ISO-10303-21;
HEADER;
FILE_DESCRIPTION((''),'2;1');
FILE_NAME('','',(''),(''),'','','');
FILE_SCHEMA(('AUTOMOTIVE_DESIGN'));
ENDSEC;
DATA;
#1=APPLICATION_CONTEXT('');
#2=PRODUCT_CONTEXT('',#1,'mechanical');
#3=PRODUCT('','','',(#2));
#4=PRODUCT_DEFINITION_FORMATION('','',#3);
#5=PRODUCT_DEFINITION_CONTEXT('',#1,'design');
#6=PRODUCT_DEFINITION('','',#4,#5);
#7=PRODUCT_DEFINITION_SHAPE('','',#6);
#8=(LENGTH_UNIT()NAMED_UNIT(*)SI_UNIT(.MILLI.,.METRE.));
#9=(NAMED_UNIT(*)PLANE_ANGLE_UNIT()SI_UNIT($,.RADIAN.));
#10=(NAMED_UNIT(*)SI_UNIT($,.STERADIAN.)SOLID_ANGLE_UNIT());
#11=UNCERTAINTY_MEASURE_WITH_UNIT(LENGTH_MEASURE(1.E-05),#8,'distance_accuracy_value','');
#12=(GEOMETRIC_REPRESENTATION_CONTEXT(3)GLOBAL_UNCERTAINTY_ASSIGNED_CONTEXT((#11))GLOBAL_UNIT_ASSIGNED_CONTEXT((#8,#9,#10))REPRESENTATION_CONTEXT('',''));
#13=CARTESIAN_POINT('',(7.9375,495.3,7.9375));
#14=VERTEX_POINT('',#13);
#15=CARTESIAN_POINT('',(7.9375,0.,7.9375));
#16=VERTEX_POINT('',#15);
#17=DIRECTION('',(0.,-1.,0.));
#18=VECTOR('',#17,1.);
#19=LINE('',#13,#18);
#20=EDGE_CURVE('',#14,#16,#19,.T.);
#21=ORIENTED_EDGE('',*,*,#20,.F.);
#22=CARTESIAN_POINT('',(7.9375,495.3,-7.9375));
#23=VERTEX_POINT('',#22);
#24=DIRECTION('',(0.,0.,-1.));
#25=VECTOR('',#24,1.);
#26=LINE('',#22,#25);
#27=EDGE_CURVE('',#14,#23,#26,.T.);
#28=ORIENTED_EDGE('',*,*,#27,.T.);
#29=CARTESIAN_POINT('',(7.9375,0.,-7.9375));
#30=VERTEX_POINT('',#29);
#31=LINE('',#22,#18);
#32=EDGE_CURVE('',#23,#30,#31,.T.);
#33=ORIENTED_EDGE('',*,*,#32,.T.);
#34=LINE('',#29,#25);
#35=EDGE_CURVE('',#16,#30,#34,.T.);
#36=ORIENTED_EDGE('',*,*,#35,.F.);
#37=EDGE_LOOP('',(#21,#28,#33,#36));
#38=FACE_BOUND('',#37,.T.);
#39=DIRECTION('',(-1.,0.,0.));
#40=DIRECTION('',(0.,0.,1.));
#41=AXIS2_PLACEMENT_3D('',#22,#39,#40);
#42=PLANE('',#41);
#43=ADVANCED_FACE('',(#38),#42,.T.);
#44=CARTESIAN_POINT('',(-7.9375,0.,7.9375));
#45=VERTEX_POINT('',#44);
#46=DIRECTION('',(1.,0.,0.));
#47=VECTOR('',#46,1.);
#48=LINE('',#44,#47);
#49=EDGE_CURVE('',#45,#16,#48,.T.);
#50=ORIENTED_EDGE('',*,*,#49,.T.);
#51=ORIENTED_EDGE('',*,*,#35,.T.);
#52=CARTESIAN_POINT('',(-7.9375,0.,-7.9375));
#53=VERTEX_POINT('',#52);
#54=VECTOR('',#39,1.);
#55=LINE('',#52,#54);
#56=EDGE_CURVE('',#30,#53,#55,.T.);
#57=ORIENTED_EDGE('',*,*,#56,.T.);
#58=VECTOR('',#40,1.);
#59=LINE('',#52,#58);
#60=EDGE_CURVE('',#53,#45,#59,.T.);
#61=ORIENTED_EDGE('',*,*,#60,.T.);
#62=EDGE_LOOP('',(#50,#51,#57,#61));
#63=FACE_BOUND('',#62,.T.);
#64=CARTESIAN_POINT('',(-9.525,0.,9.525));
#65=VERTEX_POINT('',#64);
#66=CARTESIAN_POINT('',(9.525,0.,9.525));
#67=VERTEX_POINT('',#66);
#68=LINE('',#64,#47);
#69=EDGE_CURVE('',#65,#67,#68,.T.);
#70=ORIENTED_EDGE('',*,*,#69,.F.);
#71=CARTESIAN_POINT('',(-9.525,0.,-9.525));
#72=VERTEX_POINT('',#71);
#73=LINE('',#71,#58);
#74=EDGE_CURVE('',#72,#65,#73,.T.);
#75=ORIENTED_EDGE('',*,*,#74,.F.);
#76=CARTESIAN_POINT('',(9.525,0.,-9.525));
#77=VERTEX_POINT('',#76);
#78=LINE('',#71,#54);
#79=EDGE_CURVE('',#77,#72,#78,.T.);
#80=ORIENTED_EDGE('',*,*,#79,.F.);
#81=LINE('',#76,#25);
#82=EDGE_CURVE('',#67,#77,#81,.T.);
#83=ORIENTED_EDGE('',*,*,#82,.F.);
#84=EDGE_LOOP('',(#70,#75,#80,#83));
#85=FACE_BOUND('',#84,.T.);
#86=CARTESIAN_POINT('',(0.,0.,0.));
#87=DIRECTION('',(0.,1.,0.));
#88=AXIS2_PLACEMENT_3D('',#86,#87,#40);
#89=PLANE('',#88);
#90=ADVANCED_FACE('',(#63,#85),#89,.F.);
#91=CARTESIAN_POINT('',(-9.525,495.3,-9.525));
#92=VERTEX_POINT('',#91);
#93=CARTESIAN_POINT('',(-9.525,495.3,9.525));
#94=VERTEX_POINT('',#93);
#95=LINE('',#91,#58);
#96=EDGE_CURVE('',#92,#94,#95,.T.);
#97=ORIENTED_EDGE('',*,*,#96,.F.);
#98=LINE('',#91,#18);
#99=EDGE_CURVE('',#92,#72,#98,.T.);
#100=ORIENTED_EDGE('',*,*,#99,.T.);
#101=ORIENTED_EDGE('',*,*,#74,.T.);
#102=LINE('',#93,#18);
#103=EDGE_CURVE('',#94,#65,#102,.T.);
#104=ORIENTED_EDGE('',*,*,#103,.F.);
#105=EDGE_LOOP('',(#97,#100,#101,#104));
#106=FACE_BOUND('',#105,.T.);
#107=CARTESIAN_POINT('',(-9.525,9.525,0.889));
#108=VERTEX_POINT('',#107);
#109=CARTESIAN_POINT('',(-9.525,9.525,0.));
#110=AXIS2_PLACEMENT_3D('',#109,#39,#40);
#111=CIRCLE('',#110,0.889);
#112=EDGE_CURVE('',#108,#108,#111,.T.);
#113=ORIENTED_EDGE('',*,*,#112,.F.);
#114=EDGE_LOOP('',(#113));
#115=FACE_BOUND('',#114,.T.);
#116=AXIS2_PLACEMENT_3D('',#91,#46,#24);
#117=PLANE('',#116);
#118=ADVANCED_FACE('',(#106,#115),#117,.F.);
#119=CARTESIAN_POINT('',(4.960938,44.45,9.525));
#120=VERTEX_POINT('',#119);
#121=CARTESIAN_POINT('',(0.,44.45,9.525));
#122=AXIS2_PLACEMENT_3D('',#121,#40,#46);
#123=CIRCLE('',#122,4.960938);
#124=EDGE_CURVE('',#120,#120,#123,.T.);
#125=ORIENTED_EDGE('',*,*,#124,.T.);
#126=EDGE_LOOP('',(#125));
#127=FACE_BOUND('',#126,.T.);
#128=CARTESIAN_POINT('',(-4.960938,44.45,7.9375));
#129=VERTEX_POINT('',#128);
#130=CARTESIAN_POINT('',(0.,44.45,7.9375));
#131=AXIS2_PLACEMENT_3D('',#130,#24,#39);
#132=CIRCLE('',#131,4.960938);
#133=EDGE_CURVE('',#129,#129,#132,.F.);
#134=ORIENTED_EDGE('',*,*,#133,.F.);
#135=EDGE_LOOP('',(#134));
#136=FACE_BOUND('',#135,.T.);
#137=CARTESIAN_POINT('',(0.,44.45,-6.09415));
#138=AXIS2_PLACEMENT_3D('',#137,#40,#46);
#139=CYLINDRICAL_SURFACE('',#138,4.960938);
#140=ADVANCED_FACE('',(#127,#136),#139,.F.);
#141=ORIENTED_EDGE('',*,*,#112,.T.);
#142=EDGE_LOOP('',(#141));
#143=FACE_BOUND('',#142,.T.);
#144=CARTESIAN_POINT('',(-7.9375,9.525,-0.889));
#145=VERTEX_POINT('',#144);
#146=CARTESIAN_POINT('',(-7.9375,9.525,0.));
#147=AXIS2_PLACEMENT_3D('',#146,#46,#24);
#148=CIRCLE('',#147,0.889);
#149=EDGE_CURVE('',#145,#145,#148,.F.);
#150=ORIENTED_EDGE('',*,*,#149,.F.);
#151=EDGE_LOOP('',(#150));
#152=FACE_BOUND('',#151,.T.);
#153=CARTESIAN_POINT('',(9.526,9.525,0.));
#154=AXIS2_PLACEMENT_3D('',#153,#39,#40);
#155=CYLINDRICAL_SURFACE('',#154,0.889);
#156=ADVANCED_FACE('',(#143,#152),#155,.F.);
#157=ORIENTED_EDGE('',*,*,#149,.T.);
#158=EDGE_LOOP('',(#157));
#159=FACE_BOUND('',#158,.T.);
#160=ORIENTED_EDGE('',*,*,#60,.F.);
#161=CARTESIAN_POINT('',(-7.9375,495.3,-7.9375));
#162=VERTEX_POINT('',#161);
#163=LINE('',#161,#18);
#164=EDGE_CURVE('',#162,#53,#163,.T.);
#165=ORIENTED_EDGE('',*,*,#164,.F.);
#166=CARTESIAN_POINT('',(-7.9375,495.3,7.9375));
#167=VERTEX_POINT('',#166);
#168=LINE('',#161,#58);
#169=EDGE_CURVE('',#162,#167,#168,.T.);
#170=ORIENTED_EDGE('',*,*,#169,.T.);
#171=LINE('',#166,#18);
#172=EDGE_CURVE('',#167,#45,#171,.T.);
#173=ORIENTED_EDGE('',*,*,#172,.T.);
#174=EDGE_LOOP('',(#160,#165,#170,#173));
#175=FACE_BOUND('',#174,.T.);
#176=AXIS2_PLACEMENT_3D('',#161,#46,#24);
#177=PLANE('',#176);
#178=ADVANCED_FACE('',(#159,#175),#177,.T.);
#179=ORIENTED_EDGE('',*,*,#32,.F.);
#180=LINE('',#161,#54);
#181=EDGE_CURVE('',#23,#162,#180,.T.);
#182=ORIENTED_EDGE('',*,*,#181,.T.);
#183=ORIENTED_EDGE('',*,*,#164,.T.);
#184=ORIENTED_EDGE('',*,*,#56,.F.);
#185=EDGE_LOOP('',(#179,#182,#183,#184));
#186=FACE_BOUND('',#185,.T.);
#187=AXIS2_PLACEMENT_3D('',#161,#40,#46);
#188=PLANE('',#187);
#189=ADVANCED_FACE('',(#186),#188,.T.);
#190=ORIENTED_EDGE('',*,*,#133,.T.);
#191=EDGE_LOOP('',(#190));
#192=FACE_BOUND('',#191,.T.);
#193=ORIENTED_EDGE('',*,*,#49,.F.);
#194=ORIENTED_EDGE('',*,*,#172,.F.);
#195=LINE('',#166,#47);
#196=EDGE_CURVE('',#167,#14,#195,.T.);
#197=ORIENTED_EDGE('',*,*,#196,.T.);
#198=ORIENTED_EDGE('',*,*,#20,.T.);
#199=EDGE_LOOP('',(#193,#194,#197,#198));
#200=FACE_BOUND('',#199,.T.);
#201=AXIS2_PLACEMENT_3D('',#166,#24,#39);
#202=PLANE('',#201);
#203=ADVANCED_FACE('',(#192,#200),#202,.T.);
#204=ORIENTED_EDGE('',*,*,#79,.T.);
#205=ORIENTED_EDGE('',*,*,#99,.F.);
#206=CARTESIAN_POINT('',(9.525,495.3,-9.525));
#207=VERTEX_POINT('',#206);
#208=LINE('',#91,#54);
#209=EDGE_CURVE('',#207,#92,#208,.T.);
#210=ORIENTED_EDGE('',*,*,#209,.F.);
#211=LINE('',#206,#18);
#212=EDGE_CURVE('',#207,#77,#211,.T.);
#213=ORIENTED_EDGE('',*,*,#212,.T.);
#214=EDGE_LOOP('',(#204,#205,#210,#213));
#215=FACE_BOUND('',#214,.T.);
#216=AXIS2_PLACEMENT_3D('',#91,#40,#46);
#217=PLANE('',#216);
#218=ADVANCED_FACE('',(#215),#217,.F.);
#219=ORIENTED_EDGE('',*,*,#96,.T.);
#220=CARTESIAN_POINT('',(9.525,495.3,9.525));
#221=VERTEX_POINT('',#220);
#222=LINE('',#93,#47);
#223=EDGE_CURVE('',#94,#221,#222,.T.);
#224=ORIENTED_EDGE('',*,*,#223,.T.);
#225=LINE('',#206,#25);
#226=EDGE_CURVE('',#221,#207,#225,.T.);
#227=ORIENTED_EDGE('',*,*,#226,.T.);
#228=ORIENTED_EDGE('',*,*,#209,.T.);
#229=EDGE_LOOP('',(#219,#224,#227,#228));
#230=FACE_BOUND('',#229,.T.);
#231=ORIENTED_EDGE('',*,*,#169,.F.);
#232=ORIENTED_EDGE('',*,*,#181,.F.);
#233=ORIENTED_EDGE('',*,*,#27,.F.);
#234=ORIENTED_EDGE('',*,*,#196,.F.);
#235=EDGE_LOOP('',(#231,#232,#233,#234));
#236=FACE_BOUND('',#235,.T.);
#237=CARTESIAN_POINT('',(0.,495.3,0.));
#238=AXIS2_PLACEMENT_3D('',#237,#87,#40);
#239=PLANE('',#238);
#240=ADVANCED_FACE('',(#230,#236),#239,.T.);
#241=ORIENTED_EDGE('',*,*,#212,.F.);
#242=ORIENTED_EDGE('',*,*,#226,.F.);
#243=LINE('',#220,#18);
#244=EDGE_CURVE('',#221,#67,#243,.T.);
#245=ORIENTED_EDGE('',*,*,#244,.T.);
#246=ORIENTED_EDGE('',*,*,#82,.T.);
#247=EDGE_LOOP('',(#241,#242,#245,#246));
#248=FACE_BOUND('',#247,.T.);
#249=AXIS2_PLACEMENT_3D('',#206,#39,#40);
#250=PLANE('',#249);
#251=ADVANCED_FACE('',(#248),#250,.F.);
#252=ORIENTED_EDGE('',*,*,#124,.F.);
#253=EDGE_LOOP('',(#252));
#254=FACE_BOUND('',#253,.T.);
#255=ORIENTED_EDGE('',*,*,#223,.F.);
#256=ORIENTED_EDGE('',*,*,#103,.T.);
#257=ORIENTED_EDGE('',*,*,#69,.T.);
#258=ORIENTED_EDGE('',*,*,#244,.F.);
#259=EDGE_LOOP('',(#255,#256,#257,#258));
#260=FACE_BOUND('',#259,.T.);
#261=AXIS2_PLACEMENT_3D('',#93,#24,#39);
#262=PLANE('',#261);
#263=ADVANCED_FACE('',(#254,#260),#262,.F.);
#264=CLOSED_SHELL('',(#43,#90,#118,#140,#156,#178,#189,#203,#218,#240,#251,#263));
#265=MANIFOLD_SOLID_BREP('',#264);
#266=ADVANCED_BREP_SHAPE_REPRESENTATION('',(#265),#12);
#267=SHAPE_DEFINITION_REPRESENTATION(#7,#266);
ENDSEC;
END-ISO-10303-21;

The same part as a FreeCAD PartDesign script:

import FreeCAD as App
import Part
import Sketcher
from FreeCAD import Vector
Q = App.Units.Quantity

doc = App.newDocument("Part")
params = doc.addObject("Spreadsheet::Sheet", "Params")
for row, (alias, value) in enumerate([
    ("sketch1_width", "0.75 in"),
    ("sketch1_width2", "0.625 in"),
    ("pad1_length", "19.5 in"),
    ("sketch2_diameter", "0.390625 in"),
    ("pocket1_length", "0.0625 in"),
    ("sketch3_diameter", "0.07 in"),
], start=1):
    params.set(f"A{row}", alias)
    params.set(f"B{row}", "=" + value)
    params.setAlias(f"B{row}", alias)

body = doc.addObject("PartDesign::Body", "Body")

# Sketch on XZ plane
sketch1 = doc.addObject("Sketcher::SketchObject", "Sketch")
body.addObject(sketch1)
sketch1.AttachmentSupport = (doc.XZ_Plane, [""])
sketch1.MapMode = "FlatFace"
sketch1.addGeometry([
    Part.LineSegment(Vector(-10, -10, 0), Vector(-10, 10, 0)),  # 0
    Part.LineSegment(Vector(-10, 10, 0), Vector(10, 10, 0)),  # 1
    Part.LineSegment(Vector(10, 10, 0), Vector(10, -10, 0)),  # 2
    Part.LineSegment(Vector(10, -10, 0), Vector(-10, -10, 0)),  # 3
    Part.LineSegment(Vector(8, 8, 0), Vector(-8, 8, 0)),  # 4
    Part.LineSegment(Vector(-8, 8, 0), Vector(-8, -8, 0)),  # 5
    Part.LineSegment(Vector(-8, -8, 0), Vector(8, -8, 0)),  # 6
    Part.LineSegment(Vector(8, -8, 0), Vector(8, 8, 0)),  # 7
], False)
sketch1.addConstraint([
    Sketcher.Constraint("Coincident", 0, 2, 1, 1),
    Sketcher.Constraint("Coincident", 1, 2, 2, 1),
    Sketcher.Constraint("Coincident", 2, 2, 3, 1),
    Sketcher.Constraint("Coincident", 3, 2, 0, 1),
    Sketcher.Constraint("Coincident", 4, 2, 5, 1),
    Sketcher.Constraint("Coincident", 5, 2, 6, 1),
    Sketcher.Constraint("Coincident", 6, 2, 7, 1),
    Sketcher.Constraint("Coincident", 7, 2, 4, 1),
    Sketcher.Constraint("Vertical", 0),
    Sketcher.Constraint("Horizontal", 1),
    Sketcher.Constraint("Vertical", 2),
    Sketcher.Constraint("Horizontal", 3),
    Sketcher.Constraint("Horizontal", 4),
    Sketcher.Constraint("Vertical", 5),
    Sketcher.Constraint("Horizontal", 6),
    Sketcher.Constraint("Vertical", 7),
    Sketcher.Constraint("Symmetric", 0, 2, 2, 2, -1, 1),
    Sketcher.Constraint("Symmetric", 4, 2, 6, 2, -1, 1),
    Sketcher.Constraint("Equal", 3, 0),
    Sketcher.Constraint("Equal", 6, 5),
    Sketcher.Constraint("DistanceX", 1, 1, 1, 2, Q("0.75 in")),
    Sketcher.Constraint("DistanceX", 4, 2, 4, 1, Q("0.625 in")),
])
sketch1.setExpression("Constraints[20]", "Params.sketch1_width")
sketch1.setExpression("Constraints[21]", "Params.sketch1_width2")
pad1 = doc.addObject("PartDesign::Pad", "Pad")
body.addObject(pad1)
pad1.Profile = sketch1
pad1.setExpression("Length", "Params.pad1_length")
pad1.Reversed = True

# Sketch on XY plane
sketch2 = doc.addObject("Sketcher::SketchObject", "Sketch001")
body.addObject(sketch2)
sketch2.AttachmentSupport = (doc.XY_Plane, [""])
sketch2.MapMode = "FlatFace"
sketch2.AttachmentOffset = App.Placement(Vector(0, 0, 0.375 * 25.4), App.Rotation())
sketch2.addGeometry(Part.Circle(Vector(0, 44.5, 0), Vector(0, 0, 1), 5), False)
sketch2.addConstraint([
    Sketcher.Constraint("PointOnObject", 0, 3, -2),
    Sketcher.Constraint("Diameter", 0, Q("0.390625 in")),
    Sketcher.Constraint("DistanceY", -1, 1, 0, 3, Q("1.75 in")),
])
sketch2.setExpression("Constraints[1]", "Params.sketch2_diameter")
pocket1 = doc.addObject("PartDesign::Pocket", "Pocket")
body.addObject(pocket1)
pocket1.Profile = sketch2
pocket1.setExpression("Length", "Params.pocket1_length")

# Sketch on YZ plane
sketch3 = doc.addObject("Sketcher::SketchObject", "Sketch002")
body.addObject(sketch3)
sketch3.AttachmentSupport = (doc.YZ_Plane, [""])
sketch3.MapMode = "FlatFace"
sketch3.AttachmentOffset = App.Placement(Vector(0, 0, -0.375 * 25.4), App.Rotation())
sketch3.addGeometry(Part.Circle(Vector(9.5, 0, 0), Vector(0, 0, 1), 0.9), False)
sketch3.addConstraint([
    Sketcher.Constraint("PointOnObject", 0, 3, -1),
    Sketcher.Constraint("Diameter", 0, Q("0.07 in")),
    Sketcher.Constraint("DistanceX", -1, 1, 0, 3, Q("0.375 in")),
])
sketch3.setExpression("Constraints[1]", "Params.sketch3_diameter")
pocket2 = doc.addObject("PartDesign::Pocket", "Pocket001")
body.addObject(pocket2)
pocket2.Profile = sketch3
pocket2.Type = "UpToFirst"
pocket2.Reversed = True

doc.recompute()
